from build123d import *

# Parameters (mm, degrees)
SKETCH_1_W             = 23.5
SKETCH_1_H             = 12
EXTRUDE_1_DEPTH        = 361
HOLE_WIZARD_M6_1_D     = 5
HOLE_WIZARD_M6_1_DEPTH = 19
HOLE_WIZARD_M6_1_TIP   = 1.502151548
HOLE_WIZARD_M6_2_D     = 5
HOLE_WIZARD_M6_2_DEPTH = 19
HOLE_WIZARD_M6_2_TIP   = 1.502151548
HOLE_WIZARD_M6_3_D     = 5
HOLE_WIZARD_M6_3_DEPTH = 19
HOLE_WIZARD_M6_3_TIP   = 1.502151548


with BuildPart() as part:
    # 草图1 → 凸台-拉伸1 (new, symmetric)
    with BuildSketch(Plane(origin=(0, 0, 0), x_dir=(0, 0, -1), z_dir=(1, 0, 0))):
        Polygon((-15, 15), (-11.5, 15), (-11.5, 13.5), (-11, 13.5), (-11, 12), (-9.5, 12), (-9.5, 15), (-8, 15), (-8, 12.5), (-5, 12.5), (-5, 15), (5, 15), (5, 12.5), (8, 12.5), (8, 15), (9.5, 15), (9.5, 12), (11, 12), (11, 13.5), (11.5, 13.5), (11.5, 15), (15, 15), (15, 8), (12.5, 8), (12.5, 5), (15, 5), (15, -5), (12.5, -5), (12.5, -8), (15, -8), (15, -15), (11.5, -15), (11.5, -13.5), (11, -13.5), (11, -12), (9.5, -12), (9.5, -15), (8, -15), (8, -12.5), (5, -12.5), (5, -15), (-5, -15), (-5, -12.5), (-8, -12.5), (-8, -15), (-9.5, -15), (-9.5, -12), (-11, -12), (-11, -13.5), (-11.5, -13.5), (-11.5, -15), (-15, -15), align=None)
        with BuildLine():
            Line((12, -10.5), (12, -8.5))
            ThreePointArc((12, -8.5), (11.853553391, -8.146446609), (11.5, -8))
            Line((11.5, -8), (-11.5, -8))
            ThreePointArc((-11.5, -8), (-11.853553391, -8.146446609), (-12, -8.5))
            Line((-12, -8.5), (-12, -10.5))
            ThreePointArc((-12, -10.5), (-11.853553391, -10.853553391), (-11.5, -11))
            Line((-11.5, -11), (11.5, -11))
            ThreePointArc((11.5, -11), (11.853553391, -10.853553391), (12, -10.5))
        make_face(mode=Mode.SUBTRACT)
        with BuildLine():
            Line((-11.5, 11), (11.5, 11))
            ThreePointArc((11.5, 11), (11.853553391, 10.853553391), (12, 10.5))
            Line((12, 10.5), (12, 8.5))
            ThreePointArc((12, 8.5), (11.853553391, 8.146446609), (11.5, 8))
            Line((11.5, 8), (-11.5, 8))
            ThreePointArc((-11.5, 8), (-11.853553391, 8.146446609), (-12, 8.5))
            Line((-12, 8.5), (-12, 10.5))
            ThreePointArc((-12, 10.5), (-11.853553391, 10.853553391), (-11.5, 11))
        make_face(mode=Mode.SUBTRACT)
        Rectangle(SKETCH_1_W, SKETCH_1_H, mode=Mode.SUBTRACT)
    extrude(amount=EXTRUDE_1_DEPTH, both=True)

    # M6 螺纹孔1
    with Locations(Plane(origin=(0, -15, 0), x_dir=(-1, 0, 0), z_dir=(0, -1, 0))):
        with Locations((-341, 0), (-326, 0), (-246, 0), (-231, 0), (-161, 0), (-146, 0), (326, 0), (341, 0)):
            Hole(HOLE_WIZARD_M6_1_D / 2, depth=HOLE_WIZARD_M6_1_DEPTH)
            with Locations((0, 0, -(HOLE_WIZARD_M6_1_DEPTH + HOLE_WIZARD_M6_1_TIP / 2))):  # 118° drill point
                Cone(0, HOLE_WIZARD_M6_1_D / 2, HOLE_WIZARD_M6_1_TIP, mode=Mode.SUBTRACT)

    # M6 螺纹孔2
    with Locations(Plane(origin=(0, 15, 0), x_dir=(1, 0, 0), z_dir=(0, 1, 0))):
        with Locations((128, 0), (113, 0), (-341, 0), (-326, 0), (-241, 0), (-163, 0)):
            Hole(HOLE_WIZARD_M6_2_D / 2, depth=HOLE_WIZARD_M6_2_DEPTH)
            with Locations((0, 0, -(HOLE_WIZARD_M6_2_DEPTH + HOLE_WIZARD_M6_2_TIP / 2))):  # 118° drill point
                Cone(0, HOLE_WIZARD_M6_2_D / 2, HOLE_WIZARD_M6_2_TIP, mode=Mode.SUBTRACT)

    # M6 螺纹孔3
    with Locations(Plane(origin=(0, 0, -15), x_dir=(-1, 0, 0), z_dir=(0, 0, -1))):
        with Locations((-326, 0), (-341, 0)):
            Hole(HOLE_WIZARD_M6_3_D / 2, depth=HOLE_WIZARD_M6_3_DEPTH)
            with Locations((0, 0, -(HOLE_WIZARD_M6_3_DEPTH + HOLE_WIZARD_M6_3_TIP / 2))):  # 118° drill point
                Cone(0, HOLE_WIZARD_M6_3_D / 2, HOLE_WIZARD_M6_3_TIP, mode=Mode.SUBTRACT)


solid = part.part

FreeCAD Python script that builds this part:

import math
import FreeCAD as App
import Part
import Sketcher

V = App.Vector

doc = App.newDocument("Part")
body = doc.addObject("PartDesign::Body", "Body")

# Sketch on YZ plane
sketch1 = body.newObject("Sketcher::SketchObject", "Sketch")
sketch1.AttachmentSupport = (doc.getObject("YZ_Plane"), [""])
sketch1.MapMode = "FlatFace"
sketch1.addGeometry([
    Part.LineSegment(V(15, 11.5, 0), V(15, 15, 0)),  # 0
    Part.LineSegment(V(15, 15, 0), V(-15, 15, 0)),  # 1
    Part.LineSegment(V(-15, 15, 0), V(-15, 11.5, 0)),  # 2
    Part.LineSegment(V(-15, 11.5, 0), V(-13.5, 11.5, 0)),  # 3
    Part.LineSegment(V(-13.5, 11.5, 0), V(-13.5, 11, 0)),  # 4
    Part.LineSegment(V(-13.5, 11, 0), V(-12, 11, 0)),  # 5
    Part.LineSegment(V(-12, 11, 0), V(-12, 9.5, 0)),  # 6
    Part.LineSegment(V(-12, 9.5, 0), V(-15, 9.5, 0)),  # 7
    Part.LineSegment(V(-15, 9.5, 0), V(-15, 8, 0)),  # 8
    Part.LineSegment(V(-15, 8, 0), V(-12.5, 8, 0)),  # 9
    Part.LineSegment(V(-12.5, 8, 0), V(-12.5, 5, 0)),  # 10
    Part.LineSegment(V(-12.5, 5, 0), V(-15, 5, 0)),  # 11
    Part.LineSegment(V(-15, 5, 0), V(-15, -5, 0)),  # 12
    Part.LineSegment(V(-15, -5, 0), V(-12.5, -5, 0)),  # 13
    Part.LineSegment(V(-12.5, -5, 0), V(-12.5, -8, 0)),  # 14
    Part.LineSegment(V(-12.5, -8, 0), V(-15, -8, 0)),  # 15
    Part.LineSegment(V(-15, -8, 0), V(-15, -9.5, 0)),  # 16
    Part.LineSegment(V(-15, -9.5, 0), V(-12, -9.5, 0)),  # 17
    Part.LineSegment(V(-12, -9.5, 0), V(-12, -11, 0)),  # 18
    Part.LineSegment(V(-12, -11, 0), V(-13.5, -11, 0)),  # 19
    Part.LineSegment(V(-13.5, -11, 0), V(-13.5, -11.5, 0)),  # 20
    Part.LineSegment(V(-13.5, -11.5, 0), V(-15, -11.5, 0)),  # 21
    Part.LineSegment(V(-15, -11.5, 0), V(-15, -15, 0)),  # 22
    Part.LineSegment(V(-15, -15, 0), V(-8, -15, 0)),  # 23
    Part.LineSegment(V(-8, -15, 0), V(-8, -12.5, 0)),  # 24
    Part.LineSegment(V(-8, -12.5, 0), V(-5, -12.5, 0)),  # 25
    Part.LineSegment(V(-5, -12.5, 0), V(-5, -15, 0)),  # 26
    Part.LineSegment(V(-5, -15, 0), V(5, -15, 0)),  # 27
    Part.LineSegment(V(5, -15, 0), V(5, -12.5, 0)),  # 28
    Part.LineSegment(V(5, -12.5, 0), V(8, -12.5, 0)),  # 29
    Part.LineSegment(V(8, -12.5, 0), V(8, -15, 0)),  # 30
    Part.LineSegment(V(8, -15, 0), V(15, -15, 0)),  # 31
    Part.LineSegment(V(15, -15, 0), V(15, -11.5, 0)),  # 32
    Part.LineSegment(V(15, -11.5, 0), V(13.5, -11.5, 0)),  # 33
    Part.LineSegment(V(13.5, -11.5, 0), V(13.5, -11, 0)),  # 34
    Part.LineSegment(V(13.5, -11, 0), V(12, -11, 0)),  # 35
    Part.LineSegment(V(12, -11, 0), V(12, -9.5, 0)),  # 36
    Part.LineSegment(V(12, -9.5, 0), V(15, -9.5, 0)),  # 37
    Part.LineSegment(V(15, -9.5, 0), V(15, -8, 0)),  # 38
    Part.LineSegment(V(15, -8, 0), V(12.5, -8, 0)),  # 39
    Part.LineSegment(V(12.5, -8, 0), V(12.5, -5, 0)),  # 40
    Part.LineSegment(V(12.5, -5, 0), V(15, -5, 0)),  # 41
    Part.LineSegment(V(15, -5, 0), V(15, 5, 0)),  # 42
    Part.LineSegment(V(15, 5, 0), V(12.5, 5, 0)),  # 43
    Part.LineSegment(V(12.5, 5, 0), V(12.5, 8, 0)),  # 44
    Part.LineSegment(V(12.5, 8, 0), V(15, 8, 0)),  # 45
    Part.LineSegment(V(15, 8, 0), V(15, 9.5, 0)),  # 46
    Part.LineSegment(V(15, 9.5, 0), V(12, 9.5, 0)),  # 47
    Part.LineSegment(V(12, 9.5, 0), V(12, 11, 0)),  # 48
    Part.LineSegment(V(12, 11, 0), V(13.5, 11, 0)),  # 49
    Part.LineSegment(V(13.5, 11, 0), V(13.5, 11.5, 0)),  # 50
    Part.LineSegment(V(13.5, 11.5, 0), V(15, 11.5, 0)),  # 51
    Part.ArcOfCircle(Part.Circle(V(-10.5, -11.5, 0), V(0, 0, 1), 0.5), math.radians(180), math.radians(270)),  # 52
    Part.LineSegment(V(-11, -11.5, 0), V(-11, 11.5, 0)),  # 53
    Part.ArcOfCircle(Part.Circle(V(-10.5, 11.5, 0), V(0, 0, 1), 0.5), math.radians(90), math.radians(180)),  # 54
    Part.LineSegment(V(-10.5, 12, 0), V(-8.5, 12, 0)),  # 55
    Part.ArcOfCircle(Part.Circle(V(-8.5, 11.5, 0), V(0, 0, 1), 0.5), math.radians(0), math.radians(90)),  # 56
    Part.LineSegment(V(-8, 11.5, 0), V(-8, -11.5, 0)),  # 57
    Part.ArcOfCircle(Part.Circle(V(-8.5, -11.5, 0), V(0, 0, 1), 0.5), math.radians(-90), math.radians(0)),  # 58
    Part.LineSegment(V(-8.5, -12, 0), V(-10.5, -12, 0)),  # 59
    Part.LineSegment(V(-6, 11.75, 0), V(6, 11.75, 0)),  # 60
    Part.LineSegment(V(6, 11.75, 0), V(6, -11.75, 0)),  # 61
    Part.LineSegment(V(6, -11.75, 0), V(-6, -11.75, 0)),  # 62
    Part.LineSegment(V(-6, -11.75, 0), V(-6, 11.75, 0)),  # 63
    Part.LineSegment(V(11, 11.5, 0), V(11, -11.5, 0)),  # 64
    Part.ArcOfCircle(Part.Circle(V(10.5, -11.5, 0), V(0, 0, 1), 0.5), math.radians(-90), math.radians(0)),  # 65
    Part.LineSegment(V(10.5, -12, 0), V(8.5, -12, 0)),  # 66
    Part.ArcOfCircle(Part.Circle(V(8.5, -11.5, 0), V(0, 0, 1), 0.5), math.radians(180), math.radians(270)),  # 67
    Part.LineSegment(V(8, -11.5, 0), V(8, 11.5, 0)),  # 68
    Part.ArcOfCircle(Part.Circle(V(8.5, 11.5, 0), V(0, 0, 1), 0.5), math.radians(90), math.radians(180)),  # 69
    Part.LineSegment(V(8.5, 12, 0), V(10.5, 12, 0)),  # 70
    Part.ArcOfCircle(Part.Circle(V(10.5, 11.5, 0), V(0, 0, 1), 0.5), math.radians(0), math.radians(90)),  # 71
], False)
sketch1.addConstraint([
    Sketcher.Constraint("Coincident", 0, 2, 1, 1),
    Sketcher.Constraint("Coincident", 1, 2, 2, 1),
    Sketcher.Constraint("Coincident", 2, 2, 3, 1),
    Sketcher.Constraint("Coincident", 3, 2, 4, 1),
    Sketcher.Constraint("Coincident", 4, 2, 5, 1),
    Sketcher.Constraint("Coincident", 5, 2, 6, 1),
    Sketcher.Constraint("Coincident", 6, 2, 7, 1),
    Sketcher.Constraint("Coincident", 7, 2, 8, 1),
    Sketcher.Constraint("Coincident", 8, 2, 9, 1),
    Sketcher.Constraint("Coincident", 9, 2, 10, 1),
    Sketcher.Constraint("Coincident", 10, 2, 11, 1),
    Sketcher.Constraint("Coincident", 11, 2, 12, 1),
    Sketcher.Constraint("Coincident", 12, 2, 13, 1),
    Sketcher.Constraint("Coincident", 13, 2, 14, 1),
    Sketcher.Constraint("Coincident", 14, 2, 15, 1),
    Sketcher.Constraint("Coincident", 15, 2, 16, 1),
    Sketcher.Constraint("Coincident", 16, 2, 17, 1),
    Sketcher.Constraint("Coincident", 17, 2, 18, 1),
    Sketcher.Constraint("Coincident", 18, 2, 19, 1),
    Sketcher.Constraint("Coincident", 19, 2, 20, 1),
    Sketcher.Constraint("Coincident", 20, 2, 21, 1),
    Sketcher.Constraint("Coincident", 21, 2, 22, 1),
    Sketcher.Constraint("Coincident", 22, 2, 23, 1),
    Sketcher.Constraint("Coincident", 23, 2, 24, 1),
    Sketcher.Constraint("Coincident", 24, 2, 25, 1),
    Sketcher.Constraint("Coincident", 25, 2, 26, 1),
    Sketcher.Constraint("Coincident", 26, 2, 27, 1),
    Sketcher.Constraint("Coincident", 27, 2, 28, 1),
    Sketcher.Constraint("Coincident", 28, 2, 29, 1),
    Sketcher.Constraint("Coincident", 29, 2, 30, 1),
    Sketcher.Constraint("Coincident", 30, 2, 31, 1),
    Sketcher.Constraint("Coincident", 31, 2, 32, 1),
    Sketcher.Constraint("Coincident", 32, 2, 33, 1),
    Sketcher.Constraint("Coincident", 33, 2, 34, 1),
    Sketcher.Constraint("Coincident", 34, 2, 35, 1),
    Sketcher.Constraint("Coincident", 35, 2, 36, 1),
    Sketcher.Constraint("Coincident", 36, 2, 37, 1),
    Sketcher.Constraint("Coincident", 37, 2, 38, 1),
    Sketcher.Constraint("Coincident", 38, 2, 39, 1),
    Sketcher.Constraint("Coincident", 39, 2, 40, 1),
    Sketcher.Constraint("Coincident", 40, 2, 41, 1),
    Sketcher.Constraint("Coincident", 41, 2, 42, 1),
    Sketcher.Constraint("Coincident", 42, 2, 43, 1),
    Sketcher.Constraint("Coincident", 43, 2, 44, 1),
    Sketcher.Constraint("Coincident", 44, 2, 45, 1),
    Sketcher.Constraint("Coincident", 45, 2, 46, 1),
    Sketcher.Constraint("Coincident", 46, 2, 47, 1),
    Sketcher.Constraint("Coincident", 47, 2, 48, 1),
    Sketcher.Constraint("Coincident", 48, 2, 49, 1),
    Sketcher.Constraint("Coincident", 49, 2, 50, 1),
    Sketcher.Constraint("Coincident", 50, 2, 51, 1),
    Sketcher.Constraint("Coincident", 51, 2, 0, 1),
    Sketcher.Constraint("Tangent", 52, 1, 53, 1),
    Sketcher.Constraint("Tangent", 53, 2, 54, 2),
    Sketcher.Constraint("Tangent", 54, 1, 55, 1),
    Sketcher.Constraint("Tangent", 55, 2, 56, 2),
    Sketcher.Constraint("Tangent", 56, 1, 57, 1),
    Sketcher.Constraint("Tangent", 57, 2, 58, 2),
    Sketcher.Constraint("Tangent", 58, 1, 59, 1),
    Sketcher.Constraint("Tangent", 59, 2, 52, 2),
    Sketcher.Constraint("Coincident", 60, 2, 61, 1),
    Sketcher.Constraint("Coincident", 61, 2, 62, 1),
    Sketcher.Constraint("Coincident", 62, 2, 63, 1),
    Sketcher.Constraint("Coincident", 63, 2, 60, 1),
    Sketcher.Constraint("Tangent", 64, 2, 65, 2),
    Sketcher.Constraint("Tangent", 65, 1, 66, 1),
    Sketcher.Constraint("Tangent", 66, 2, 67, 2),
    Sketcher.Constraint("Tangent", 67, 1, 68, 1),
    Sketcher.Constraint("Tangent", 68, 2, 69, 2),
    Sketcher.Constraint("Tangent", 69, 1, 70, 1),
    Sketcher.Constraint("Tangent", 70, 2, 71, 2),
    Sketcher.Constraint("Tangent", 71, 1, 64, 1),
    Sketcher.Constraint("Vertical", 0),
    Sketcher.Constraint("Horizontal", 1),
    Sketcher.Constraint("Vertical", 2),
    Sketcher.Constraint("Horizontal", 3),
    Sketcher.Constraint("Vertical", 4),
    Sketcher.Constraint("Horizontal", 5),
    Sketcher.Constraint("Vertical", 6),
    Sketcher.Constraint("Horizontal", 7),
    Sketcher.Constraint("Vertical", 8),
    Sketcher.Constraint("Horizontal", 9),
    Sketcher.Constraint("Vertical", 10),
    Sketcher.Constraint("Horizontal", 11),
    Sketcher.Constraint("Vertical", 12),
    Sketcher.Constraint("Horizontal", 13),
    Sketcher.Constraint("Vertical", 14),
    Sketcher.Constraint("Horizontal", 15),
    Sketcher.Constraint("Vertical", 16),
    Sketcher.Constraint("Horizontal", 17),
    Sketcher.Constraint("Vertical", 18),
    Sketcher.Constraint("Horizontal", 19),
    Sketcher.Constraint("Vertical", 20),
    Sketcher.Constraint("Horizontal", 21),
    Sketcher.Constraint("Vertical", 22),
    Sketcher.Constraint("Horizontal", 23),
    Sketcher.Constraint("Vertical", 24),
    Sketcher.Constraint("Horizontal", 25),
    Sketcher.Constraint("Vertical", 26),
    Sketcher.Constraint("Horizontal", 27),
    Sketcher.Constraint("Vertical", 28),
    Sketcher.Constraint("Horizontal", 29),
    Sketcher.Constraint("Vertical", 30),
    Sketcher.Constraint("Horizontal", 31),
    Sketcher.Constraint("Vertical", 32),
    Sketcher.Constraint("Horizontal", 33),
    Sketcher.Constraint("Vertical", 34),
    Sketcher.Constraint("Horizontal", 35),
    Sketcher.Constraint("Vertical", 36),
    Sketcher.Constraint("Horizontal", 37),
    Sketcher.Constraint("Vertical", 38),
    Sketcher.Constraint("Horizontal", 39),
    Sketcher.Constraint("Vertical", 40),
    Sketcher.Constraint("Horizontal", 41),
    Sketcher.Constraint("Vertical", 42),
    Sketcher.Constraint("Horizontal", 43),
    Sketcher.Constraint("Vertical", 44),
    Sketcher.Constraint("Horizontal", 45),
    Sketcher.Constraint("Vertical", 46),
    Sketcher.Constraint("Horizontal", 47),
    Sketcher.Constraint("Vertical", 48),
    Sketcher.Constraint("Horizontal", 49),
    Sketcher.Constraint("Vertical", 50),
    Sketcher.Constraint("Horizontal", 51),
    Sketcher.Constraint("Vertical", 53),
    Sketcher.Constraint("Horizontal", 55),
    Sketcher.Constraint("Vertical", 57),
    Sketcher.Constraint("Horizontal", 59),
    Sketcher.Constraint("Horizontal", 60),
    Sketcher.Constraint("Vertical", 61),
    Sketcher.Constraint("Horizontal", 62),
    Sketcher.Constraint("Vertical", 63),
    Sketcher.Constraint("Vertical", 64),
    Sketcher.Constraint("Horizontal", 66),
    Sketcher.Constraint("Vertical", 68),
    Sketcher.Constraint("Horizontal", 70),
    Sketcher.Constraint("Equal", 52, 54),
    Sketcher.Constraint("Equal", 54, 56),
    Sketcher.Constraint("Equal", 56, 58),
    Sketcher.Constraint("Equal", 58, 65),
    Sketcher.Constraint("Equal", 65, 67),
    Sketcher.Constraint("Equal", 67, 69),
    Sketcher.Constraint("Equal", 69, 71),
    Sketcher.Constraint("Symmetric", 54, 3, 65, 3, -1, 1),
    Sketcher.Constraint("Symmetric", 58, 3, 69, 3, -1, 1),
    Sketcher.Constraint("Symmetric", 0, 2, 22, 2, -1, 1),
    Sketcher.Constraint("Symmetric", 1, 2, 31, 2, -1, 1),
    Sketcher.Constraint("Symmetric", 3, 2, 33, 2, -1, 1),
    Sketcher.Constraint("Symmetric", 5, 2, 35, 2, -1, 1),
    Sketcher.Constraint("Symmetric", 7, 2, 37, 2, -1, 1),
    Sketcher.Constraint("Symmetric", 9, 2, 39, 2, -1, 1),
    Sketcher.Constraint("Symmetric", 11, 2, 41, 2, -1, 1),
    Sketcher.Constraint("Symmetric", 13, 2, 43, 2, -1, 1),
    Sketcher.Constraint("Symmetric", 15, 2, 45, 2, -1, 1),
    Sketcher.Constraint("Symmetric", 17, 2, 47, 2, -1, 1),
    Sketcher.Constraint("Symmetric", 19, 2, 49, 2, -1, 1),
    Sketcher.Constraint("Symmetric", 60, 2, 62, 2, -1, 1),
    Sketcher.Constraint("Symmetric", 25, 2, 28, 2, -2),
    Sketcher.Constraint("Symmetric", 21, 2, 32, 2, -2),
    Sketcher.Constraint("Symmetric", 19, 2, 34, 2, -2),
    Sketcher.Constraint("Symmetric", 17, 2, 36, 2, -2),
    Sketcher.Constraint("Symmetric", 15, 2, 38, 2, -2),
    Sketcher.Constraint("Symmetric", 13, 2, 40, 2, -2),
    Sketcher.Constraint("Horizontal", 58, 3, 65, 3),
    Sketcher.Constraint("Horizontal", 71, 3, 2, 2),
    Sketcher.Constraint("Horizontal", 23, 2, 26, 2),
    Sketcher.Constraint("Horizontal", 3, 2, 50, 2),
    Sketcher.Constraint("Vertical", 2, 2, 7, 2),
    Sketcher.Constraint("Vertical", 8, 2, 11, 2),
    Sketcher.Constraint("Vertical", 24, 2, 56, 1),
    Sketcher.Constraint("Vertical", 30, 2, 67, 1),
    Sketcher.Constraint("Equal", 3, 5),
    Sketcher.Constraint("Equal", 17, 25),
    Sketcher.Constraint("Equal", 51, 6),
    Sketcher.Constraint("Equal", 6, 8),
    Sketcher.Constraint("Equal", 47, 10),
    Sketcher.Constraint("Equal", 27, 12),
    Sketcher.Constraint("Equal", 45, 24),
    Sketcher.Constraint("Radius", 52, 0.5),
    Sketcher.Constraint("DistanceX", 1, 2, 1, 1, 30.0),
    Sketcher.Constraint("DistanceX", 7, 2, 7, 1, 3.0),
    Sketcher.Constraint("DistanceX", 23, 1, 23, 2, 7.0),
    Sketcher.Constraint("DistanceX", 55, 1, 55, 2, 2.0),
    Sketcher.Constraint("DistanceX", 60, 1, 60, 2, 12.0),
    Sketcher.Constraint("DistanceY", 53, 1, 53, 2, 23.0),
    Sketcher.Constraint("DistanceX", 9, 1, 9, 2, 2.5),
    Sketcher.Constraint("DistanceY", 0, 1, 0, 2, 3.5),
    Sketcher.Constraint("DistanceY", 61, 2, 61, 1, 23.5),
])
pad1 = body.newObject("PartDesign::Pad", "Pad")
pad1.Profile = sketch1
pad1.Length = 722
pad1.Midplane = True

# Sketch on XZ plane
sketch2 = body.newObject("Sketcher::SketchObject", "Sketch001")
sketch2.AttachmentSupport = (doc.getObject("XZ_Plane"), [""])
sketch2.MapMode = "FlatFace"
sketch2.AttachmentOffset = App.Placement(V(0, 0, 15), App.Rotation())
sketch2.addGeometry([
    Part.Circle(V(341, 0, 0), V(0, 0, 1), 2.5),  # 0
    Part.Circle(V(326, 0, 0), V(0, 0, 1), 2.5),  # 1
    Part.Circle(V(246, 0, 0), V(0, 0, 1), 2.5),  # 2
    Part.Circle(V(231, 0, 0), V(0, 0, 1), 2.5),  # 3
    Part.Circle(V(161, 0, 0), V(0, 0, 1), 2.5),  # 4
    Part.Circle(V(146, 0, 0), V(0, 0, 1), 2.5),  # 5
    Part.Circle(V(-326, 0, 0), V(0, 0, 1), 2.5),  # 6
    Part.Circle(V(-341, 0, 0), V(0, 0, 1), 2.5),  # 7
], False)
sketch2.addConstraint([
    Sketcher.Constraint("Equal", 0, 1),
    Sketcher.Constraint("Equal", 1, 2),
    Sketcher.Constraint("Equal", 2, 3),
    Sketcher.Constraint("Equal", 3, 4),
    Sketcher.Constraint("Equal", 4, 5),
    Sketcher.Constraint("Equal", 5, 6),
    Sketcher.Constraint("Equal", 6, 7),
    Sketcher.Constraint("Symmetric", 1, 3, 6, 3, -1, 1),
    Sketcher.Constraint("Symmetric", 0, 3, 7, 3, -1, 1),
    Sketcher.Constraint("PointOnObject", 0, 3, -1),
    Sketcher.Constraint("PointOnObject", 1, 3, -1),
    Sketcher.Constraint("PointOnObject", 2, 3, -1),
    Sketcher.Constraint("PointOnObject", 3, 3, -1),
    Sketcher.Constraint("PointOnObject", 4, 3, -1),
    Sketcher.Constraint("PointOnObject", 5, 3, -1),
    Sketcher.Constraint("Diameter", 0, 5.0),
    Sketcher.Constraint("DistanceX", -1, 1, 0, 3, 341.0),
    Sketcher.Constraint("DistanceX", -1, 1, 1, 3, 326.0),
    Sketcher.Constraint("DistanceX", -1, 1, 2, 3, 246.0),
    Sketcher.Constraint("DistanceX", -1, 1, 3, 3, 231.0),
    Sketcher.Constraint("DistanceX", -1, 1, 4, 3, 161.0),
    Sketcher.Constraint("DistanceX", -1, 1, 5, 3, 146.0),
])
doc.recompute()
hole = body.newObject("PartDesign::Hole", "Hole")
hole.Profile = sketch2
hole.ThreadType = "None"
hole.Diameter = 5
hole.DepthType = "Dimension"
hole.Depth = 19
hole.DrillPoint = "Angled"
hole.DrillPointAngle = 118

# Sketch on XZ plane
sketch3 = body.newObject("Sketcher::SketchObject", "Sketch002")
sketch3.AttachmentSupport = (doc.getObject("XZ_Plane"), [""])
sketch3.MapMode = "FlatFace"
sketch3.AttachmentOffset = App.Placement(V(0, 0, -15), App.Rotation())
sketch3.addGeometry([
    Part.Circle(V(128, 0, 0), V(0, 0, 1), 2.5),  # 0
    Part.Circle(V(113, 0, 0), V(0, 0, 1), 2.5),  # 1
    Part.Circle(V(-341, 0, 0), V(0, 0, 1), 2.5),  # 2
    Part.Circle(V(-326, 0, 0), V(0, 0, 1), 2.5),  # 3
    Part.Circle(V(-241, 0, 0), V(0, 0, 1), 2.5),  # 4
    Part.Circle(V(-163, 0, 0), V(0, 0, 1), 2.5),  # 5
], False)
sketch3.addConstraint([
    Sketcher.Constraint("Equal", 0, 1),
    Sketcher.Constraint("Equal", 1, 2),
    Sketcher.Constraint("Equal", 2, 3),
    Sketcher.Constraint("Equal", 3, 4),
    Sketcher.Constraint("Equal", 4, 5),
    Sketcher.Constraint("PointOnObject", 0, 3, -1),
    Sketcher.Constraint("PointOnObject", 1, 3, -1),
    Sketcher.Constraint("PointOnObject", 2, 3, -1),
    Sketcher.Constraint("PointOnObject", 3, 3, -1),
    Sketcher.Constraint("PointOnObject", 4, 3, -1),
    Sketcher.Constraint("PointOnObject", 5, 3, -1),
    Sketcher.Constraint("Diameter", 0, 5.0),
    Sketcher.Constraint("DistanceX", -1, 1, 0, 3, 128.0),
    Sketcher.Constraint("DistanceX", -1, 1, 1, 3, 113.0),
    Sketcher.Constraint("DistanceX", 2, 3, -1, 1, 341.0),
    Sketcher.Constraint("DistanceX", 3, 3, -1, 1, 326.0),
    Sketcher.Constraint("DistanceX", 4, 3, -1, 1, 241.0),
    Sketcher.Constraint("DistanceX", 5, 3, -1, 1, 163.0),
])
doc.recompute()
hole2 = body.newObject("PartDesign::Hole", "Hole001")
hole2.Profile = sketch3
hole2.ThreadType = "None"
hole2.Diameter = 5
hole2.DepthType = "Dimension"
hole2.Depth = 19
hole2.DrillPoint = "Angled"
hole2.DrillPointAngle = 118
hole2.Reversed = True

# Sketch on XY plane
sketch4 = body.newObject("Sketcher::SketchObject", "Sketch003")
sketch4.AttachmentSupport = (doc.getObject("XY_Plane"), [""])
sketch4.MapMode = "FlatFace"
sketch4.AttachmentOffset = App.Placement(V(0, 0, -15), App.Rotation())
sketch4.addGeometry([
    Part.Circle(V(326, 0, 0), V(0, 0, 1), 2.5),
    Part.Circle(V(341, 0, 0), V(0, 0, 1), 2.5),
], False)
sketch4.addConstraint([
    Sketcher.Constraint("Equal", 0, 1),
    Sketcher.Constraint("PointOnObject", 0, 3, -1),
    Sketcher.Constraint("PointOnObject", 1, 3, -1),
    Sketcher.Constraint("Diameter", 0, 5.0),
    Sketcher.Constraint("DistanceX", -1, 1, 0, 3, 326.0),
    Sketcher.Constraint("DistanceX", -1, 1, 1, 3, 341.0),
])
doc.recompute()
hole3 = body.newObject("PartDesign::Hole", "Hole002")
hole3.Profile = sketch4
hole3.ThreadType = "None"
hole3.Diameter = 5
hole3.DepthType = "Dimension"
hole3.Depth = 19
hole3.DrillPoint = "Angled"
hole3.DrillPointAngle = 118
hole3.Reversed = True

doc.recompute()
